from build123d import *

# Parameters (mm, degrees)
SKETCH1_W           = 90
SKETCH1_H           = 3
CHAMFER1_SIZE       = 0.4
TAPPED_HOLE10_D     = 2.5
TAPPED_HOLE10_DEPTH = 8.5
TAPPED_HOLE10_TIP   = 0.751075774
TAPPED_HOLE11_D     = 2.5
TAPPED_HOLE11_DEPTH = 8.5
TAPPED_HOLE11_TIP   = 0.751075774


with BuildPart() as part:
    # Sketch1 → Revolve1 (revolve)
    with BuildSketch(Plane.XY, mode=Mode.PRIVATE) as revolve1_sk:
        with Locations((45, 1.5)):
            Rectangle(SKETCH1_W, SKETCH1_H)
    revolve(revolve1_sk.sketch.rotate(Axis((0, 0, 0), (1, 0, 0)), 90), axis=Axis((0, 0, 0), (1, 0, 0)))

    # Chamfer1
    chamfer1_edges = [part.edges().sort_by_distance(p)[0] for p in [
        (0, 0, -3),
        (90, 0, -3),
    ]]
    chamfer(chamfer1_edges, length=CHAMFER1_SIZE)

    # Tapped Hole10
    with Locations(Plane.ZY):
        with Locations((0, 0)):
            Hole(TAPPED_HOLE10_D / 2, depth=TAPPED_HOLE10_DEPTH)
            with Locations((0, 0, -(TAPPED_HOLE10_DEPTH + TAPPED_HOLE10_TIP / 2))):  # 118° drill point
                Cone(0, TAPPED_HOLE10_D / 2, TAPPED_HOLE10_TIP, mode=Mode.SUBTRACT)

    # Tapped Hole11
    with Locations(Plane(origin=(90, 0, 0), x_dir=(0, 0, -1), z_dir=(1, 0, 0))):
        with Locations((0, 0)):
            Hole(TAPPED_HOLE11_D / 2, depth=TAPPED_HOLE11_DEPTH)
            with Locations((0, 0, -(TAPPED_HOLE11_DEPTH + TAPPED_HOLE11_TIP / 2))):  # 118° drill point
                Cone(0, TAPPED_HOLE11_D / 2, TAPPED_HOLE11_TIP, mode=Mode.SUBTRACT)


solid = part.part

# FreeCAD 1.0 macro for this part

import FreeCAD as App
import Part
import Sketcher
from FreeCAD import Vector
Q = App.Units.Quantity


def edges_at(feature, points):
    """Names of the edges that pass closest to the given points."""
    edges = feature.Shape.Edges
    near = lambda p: min(range(len(edges)), key=lambda i: edges[i].distToShape(Part.Vertex(*p))[0])
    return sorted({f"Edge{near(p) + 1}" for p in points})


def add_polygon(sketch, points):
    """Adds a closed chain of lines whose ends are joined by coincident constraints."""
    first, n = sketch.GeometryCount, len(points)
    for a, b in zip(points, points[1:] + points[:1]):
        sketch.addGeometry(Part.LineSegment(App.Vector(*a, 0), App.Vector(*b, 0)), False)
    for i in range(n):
        sketch.addConstraint(Sketcher.Constraint("Coincident", first + i, 2, first + (i + 1) % n, 1))

doc = App.newDocument("Part")
body = doc.addObject("PartDesign::Body", "Body")

sketch1 = body.newObject("Sketcher::SketchObject", "Sketch")
sketch1.AttachmentSupport = (doc.getObject("XY_Plane"), [""])
sketch1.MapMode = "FlatFace"
add_polygon(sketch1, [(0, 3), (0, 0), (90, 0), (90, 3)])
sketch1.addConstraint([
    Sketcher.Constraint("Vertical", 0),
    Sketcher.Constraint("Horizontal", 1),
    Sketcher.Constraint("Vertical", 2),
    Sketcher.Constraint("Horizontal", 3),
    Sketcher.Constraint("Coincident", 0, 2, -1, 1),
    Sketcher.Constraint("DistanceX", 1, 1, 1, 2, Q("90 mm")),
    Sketcher.Constraint("DistanceY", 0, 2, 0, 1, Q("3 mm")),
])
revolution = body.newObject("PartDesign::Revolution", "Revolution")
revolution.Profile = sketch1
revolution.ReferenceAxis = (sketch1, ["H_Axis"])
revolution.Angle = 360
doc.recompute()

chamfer = body.newObject("PartDesign::Chamfer", "Chamfer")
chamfer.Base = (revolution, edges_at(revolution, [(0, 0, -3), (90, 0, -3)]))
chamfer.Size = 0.4

sketch2 = body.newObject("Sketcher::SketchObject", "Sketch001")
sketch2.AttachmentSupport = (doc.getObject("YZ_Plane"), [""])
sketch2.MapMode = "FlatFace"
sketch2.addGeometry(Part.Circle(Vector(0, 0, 0), Vector(0, 0, 1), 1.25), False)
sketch2.addConstraint([
    Sketcher.Constraint("Coincident", 0, 3, -1, 1),
    Sketcher.Constraint("Diameter", 0, Q("2.5 mm")),
])
doc.recompute()
hole = body.newObject("PartDesign::Hole", "Hole")
hole.Profile = sketch2
hole.ThreadType = "None"
hole.Diameter = 2.5
hole.DepthType = "Dimension"
hole.Depth = 8.5
hole.DrillPoint = "Angled"
hole.DrillPointAngle = 118
hole.Reversed = True

sketch3 = body.newObject("Sketcher::SketchObject", "Sketch002")
sketch3.AttachmentSupport = (doc.getObject("YZ_Plane"), [""])
sketch3.MapMode = "FlatFace"
sketch3.AttachmentOffset = App.Placement(Vector(0, 0, 90), App.Rotation())
sketch3.addGeometry(Part.Circle(Vector(0, 0, 0), Vector(0, 0, 1), 1.25), False)
sketch3.addConstraint([
    Sketcher.Constraint("Coincident", 0, 3, -1, 1),
    Sketcher.Constraint("Diameter", 0, Q("2.5 mm")),
])
doc.recompute()
hole2 = body.newObject("PartDesign::Hole", "Hole001")
hole2.Profile = sketch3
hole2.ThreadType = "None"
hole2.Diameter = 2.5
hole2.DepthType = "Dimension"
hole2.Depth = 8.5
hole2.DrillPoint = "Angled"
hole2.DrillPointAngle = 118

doc.recompute()
